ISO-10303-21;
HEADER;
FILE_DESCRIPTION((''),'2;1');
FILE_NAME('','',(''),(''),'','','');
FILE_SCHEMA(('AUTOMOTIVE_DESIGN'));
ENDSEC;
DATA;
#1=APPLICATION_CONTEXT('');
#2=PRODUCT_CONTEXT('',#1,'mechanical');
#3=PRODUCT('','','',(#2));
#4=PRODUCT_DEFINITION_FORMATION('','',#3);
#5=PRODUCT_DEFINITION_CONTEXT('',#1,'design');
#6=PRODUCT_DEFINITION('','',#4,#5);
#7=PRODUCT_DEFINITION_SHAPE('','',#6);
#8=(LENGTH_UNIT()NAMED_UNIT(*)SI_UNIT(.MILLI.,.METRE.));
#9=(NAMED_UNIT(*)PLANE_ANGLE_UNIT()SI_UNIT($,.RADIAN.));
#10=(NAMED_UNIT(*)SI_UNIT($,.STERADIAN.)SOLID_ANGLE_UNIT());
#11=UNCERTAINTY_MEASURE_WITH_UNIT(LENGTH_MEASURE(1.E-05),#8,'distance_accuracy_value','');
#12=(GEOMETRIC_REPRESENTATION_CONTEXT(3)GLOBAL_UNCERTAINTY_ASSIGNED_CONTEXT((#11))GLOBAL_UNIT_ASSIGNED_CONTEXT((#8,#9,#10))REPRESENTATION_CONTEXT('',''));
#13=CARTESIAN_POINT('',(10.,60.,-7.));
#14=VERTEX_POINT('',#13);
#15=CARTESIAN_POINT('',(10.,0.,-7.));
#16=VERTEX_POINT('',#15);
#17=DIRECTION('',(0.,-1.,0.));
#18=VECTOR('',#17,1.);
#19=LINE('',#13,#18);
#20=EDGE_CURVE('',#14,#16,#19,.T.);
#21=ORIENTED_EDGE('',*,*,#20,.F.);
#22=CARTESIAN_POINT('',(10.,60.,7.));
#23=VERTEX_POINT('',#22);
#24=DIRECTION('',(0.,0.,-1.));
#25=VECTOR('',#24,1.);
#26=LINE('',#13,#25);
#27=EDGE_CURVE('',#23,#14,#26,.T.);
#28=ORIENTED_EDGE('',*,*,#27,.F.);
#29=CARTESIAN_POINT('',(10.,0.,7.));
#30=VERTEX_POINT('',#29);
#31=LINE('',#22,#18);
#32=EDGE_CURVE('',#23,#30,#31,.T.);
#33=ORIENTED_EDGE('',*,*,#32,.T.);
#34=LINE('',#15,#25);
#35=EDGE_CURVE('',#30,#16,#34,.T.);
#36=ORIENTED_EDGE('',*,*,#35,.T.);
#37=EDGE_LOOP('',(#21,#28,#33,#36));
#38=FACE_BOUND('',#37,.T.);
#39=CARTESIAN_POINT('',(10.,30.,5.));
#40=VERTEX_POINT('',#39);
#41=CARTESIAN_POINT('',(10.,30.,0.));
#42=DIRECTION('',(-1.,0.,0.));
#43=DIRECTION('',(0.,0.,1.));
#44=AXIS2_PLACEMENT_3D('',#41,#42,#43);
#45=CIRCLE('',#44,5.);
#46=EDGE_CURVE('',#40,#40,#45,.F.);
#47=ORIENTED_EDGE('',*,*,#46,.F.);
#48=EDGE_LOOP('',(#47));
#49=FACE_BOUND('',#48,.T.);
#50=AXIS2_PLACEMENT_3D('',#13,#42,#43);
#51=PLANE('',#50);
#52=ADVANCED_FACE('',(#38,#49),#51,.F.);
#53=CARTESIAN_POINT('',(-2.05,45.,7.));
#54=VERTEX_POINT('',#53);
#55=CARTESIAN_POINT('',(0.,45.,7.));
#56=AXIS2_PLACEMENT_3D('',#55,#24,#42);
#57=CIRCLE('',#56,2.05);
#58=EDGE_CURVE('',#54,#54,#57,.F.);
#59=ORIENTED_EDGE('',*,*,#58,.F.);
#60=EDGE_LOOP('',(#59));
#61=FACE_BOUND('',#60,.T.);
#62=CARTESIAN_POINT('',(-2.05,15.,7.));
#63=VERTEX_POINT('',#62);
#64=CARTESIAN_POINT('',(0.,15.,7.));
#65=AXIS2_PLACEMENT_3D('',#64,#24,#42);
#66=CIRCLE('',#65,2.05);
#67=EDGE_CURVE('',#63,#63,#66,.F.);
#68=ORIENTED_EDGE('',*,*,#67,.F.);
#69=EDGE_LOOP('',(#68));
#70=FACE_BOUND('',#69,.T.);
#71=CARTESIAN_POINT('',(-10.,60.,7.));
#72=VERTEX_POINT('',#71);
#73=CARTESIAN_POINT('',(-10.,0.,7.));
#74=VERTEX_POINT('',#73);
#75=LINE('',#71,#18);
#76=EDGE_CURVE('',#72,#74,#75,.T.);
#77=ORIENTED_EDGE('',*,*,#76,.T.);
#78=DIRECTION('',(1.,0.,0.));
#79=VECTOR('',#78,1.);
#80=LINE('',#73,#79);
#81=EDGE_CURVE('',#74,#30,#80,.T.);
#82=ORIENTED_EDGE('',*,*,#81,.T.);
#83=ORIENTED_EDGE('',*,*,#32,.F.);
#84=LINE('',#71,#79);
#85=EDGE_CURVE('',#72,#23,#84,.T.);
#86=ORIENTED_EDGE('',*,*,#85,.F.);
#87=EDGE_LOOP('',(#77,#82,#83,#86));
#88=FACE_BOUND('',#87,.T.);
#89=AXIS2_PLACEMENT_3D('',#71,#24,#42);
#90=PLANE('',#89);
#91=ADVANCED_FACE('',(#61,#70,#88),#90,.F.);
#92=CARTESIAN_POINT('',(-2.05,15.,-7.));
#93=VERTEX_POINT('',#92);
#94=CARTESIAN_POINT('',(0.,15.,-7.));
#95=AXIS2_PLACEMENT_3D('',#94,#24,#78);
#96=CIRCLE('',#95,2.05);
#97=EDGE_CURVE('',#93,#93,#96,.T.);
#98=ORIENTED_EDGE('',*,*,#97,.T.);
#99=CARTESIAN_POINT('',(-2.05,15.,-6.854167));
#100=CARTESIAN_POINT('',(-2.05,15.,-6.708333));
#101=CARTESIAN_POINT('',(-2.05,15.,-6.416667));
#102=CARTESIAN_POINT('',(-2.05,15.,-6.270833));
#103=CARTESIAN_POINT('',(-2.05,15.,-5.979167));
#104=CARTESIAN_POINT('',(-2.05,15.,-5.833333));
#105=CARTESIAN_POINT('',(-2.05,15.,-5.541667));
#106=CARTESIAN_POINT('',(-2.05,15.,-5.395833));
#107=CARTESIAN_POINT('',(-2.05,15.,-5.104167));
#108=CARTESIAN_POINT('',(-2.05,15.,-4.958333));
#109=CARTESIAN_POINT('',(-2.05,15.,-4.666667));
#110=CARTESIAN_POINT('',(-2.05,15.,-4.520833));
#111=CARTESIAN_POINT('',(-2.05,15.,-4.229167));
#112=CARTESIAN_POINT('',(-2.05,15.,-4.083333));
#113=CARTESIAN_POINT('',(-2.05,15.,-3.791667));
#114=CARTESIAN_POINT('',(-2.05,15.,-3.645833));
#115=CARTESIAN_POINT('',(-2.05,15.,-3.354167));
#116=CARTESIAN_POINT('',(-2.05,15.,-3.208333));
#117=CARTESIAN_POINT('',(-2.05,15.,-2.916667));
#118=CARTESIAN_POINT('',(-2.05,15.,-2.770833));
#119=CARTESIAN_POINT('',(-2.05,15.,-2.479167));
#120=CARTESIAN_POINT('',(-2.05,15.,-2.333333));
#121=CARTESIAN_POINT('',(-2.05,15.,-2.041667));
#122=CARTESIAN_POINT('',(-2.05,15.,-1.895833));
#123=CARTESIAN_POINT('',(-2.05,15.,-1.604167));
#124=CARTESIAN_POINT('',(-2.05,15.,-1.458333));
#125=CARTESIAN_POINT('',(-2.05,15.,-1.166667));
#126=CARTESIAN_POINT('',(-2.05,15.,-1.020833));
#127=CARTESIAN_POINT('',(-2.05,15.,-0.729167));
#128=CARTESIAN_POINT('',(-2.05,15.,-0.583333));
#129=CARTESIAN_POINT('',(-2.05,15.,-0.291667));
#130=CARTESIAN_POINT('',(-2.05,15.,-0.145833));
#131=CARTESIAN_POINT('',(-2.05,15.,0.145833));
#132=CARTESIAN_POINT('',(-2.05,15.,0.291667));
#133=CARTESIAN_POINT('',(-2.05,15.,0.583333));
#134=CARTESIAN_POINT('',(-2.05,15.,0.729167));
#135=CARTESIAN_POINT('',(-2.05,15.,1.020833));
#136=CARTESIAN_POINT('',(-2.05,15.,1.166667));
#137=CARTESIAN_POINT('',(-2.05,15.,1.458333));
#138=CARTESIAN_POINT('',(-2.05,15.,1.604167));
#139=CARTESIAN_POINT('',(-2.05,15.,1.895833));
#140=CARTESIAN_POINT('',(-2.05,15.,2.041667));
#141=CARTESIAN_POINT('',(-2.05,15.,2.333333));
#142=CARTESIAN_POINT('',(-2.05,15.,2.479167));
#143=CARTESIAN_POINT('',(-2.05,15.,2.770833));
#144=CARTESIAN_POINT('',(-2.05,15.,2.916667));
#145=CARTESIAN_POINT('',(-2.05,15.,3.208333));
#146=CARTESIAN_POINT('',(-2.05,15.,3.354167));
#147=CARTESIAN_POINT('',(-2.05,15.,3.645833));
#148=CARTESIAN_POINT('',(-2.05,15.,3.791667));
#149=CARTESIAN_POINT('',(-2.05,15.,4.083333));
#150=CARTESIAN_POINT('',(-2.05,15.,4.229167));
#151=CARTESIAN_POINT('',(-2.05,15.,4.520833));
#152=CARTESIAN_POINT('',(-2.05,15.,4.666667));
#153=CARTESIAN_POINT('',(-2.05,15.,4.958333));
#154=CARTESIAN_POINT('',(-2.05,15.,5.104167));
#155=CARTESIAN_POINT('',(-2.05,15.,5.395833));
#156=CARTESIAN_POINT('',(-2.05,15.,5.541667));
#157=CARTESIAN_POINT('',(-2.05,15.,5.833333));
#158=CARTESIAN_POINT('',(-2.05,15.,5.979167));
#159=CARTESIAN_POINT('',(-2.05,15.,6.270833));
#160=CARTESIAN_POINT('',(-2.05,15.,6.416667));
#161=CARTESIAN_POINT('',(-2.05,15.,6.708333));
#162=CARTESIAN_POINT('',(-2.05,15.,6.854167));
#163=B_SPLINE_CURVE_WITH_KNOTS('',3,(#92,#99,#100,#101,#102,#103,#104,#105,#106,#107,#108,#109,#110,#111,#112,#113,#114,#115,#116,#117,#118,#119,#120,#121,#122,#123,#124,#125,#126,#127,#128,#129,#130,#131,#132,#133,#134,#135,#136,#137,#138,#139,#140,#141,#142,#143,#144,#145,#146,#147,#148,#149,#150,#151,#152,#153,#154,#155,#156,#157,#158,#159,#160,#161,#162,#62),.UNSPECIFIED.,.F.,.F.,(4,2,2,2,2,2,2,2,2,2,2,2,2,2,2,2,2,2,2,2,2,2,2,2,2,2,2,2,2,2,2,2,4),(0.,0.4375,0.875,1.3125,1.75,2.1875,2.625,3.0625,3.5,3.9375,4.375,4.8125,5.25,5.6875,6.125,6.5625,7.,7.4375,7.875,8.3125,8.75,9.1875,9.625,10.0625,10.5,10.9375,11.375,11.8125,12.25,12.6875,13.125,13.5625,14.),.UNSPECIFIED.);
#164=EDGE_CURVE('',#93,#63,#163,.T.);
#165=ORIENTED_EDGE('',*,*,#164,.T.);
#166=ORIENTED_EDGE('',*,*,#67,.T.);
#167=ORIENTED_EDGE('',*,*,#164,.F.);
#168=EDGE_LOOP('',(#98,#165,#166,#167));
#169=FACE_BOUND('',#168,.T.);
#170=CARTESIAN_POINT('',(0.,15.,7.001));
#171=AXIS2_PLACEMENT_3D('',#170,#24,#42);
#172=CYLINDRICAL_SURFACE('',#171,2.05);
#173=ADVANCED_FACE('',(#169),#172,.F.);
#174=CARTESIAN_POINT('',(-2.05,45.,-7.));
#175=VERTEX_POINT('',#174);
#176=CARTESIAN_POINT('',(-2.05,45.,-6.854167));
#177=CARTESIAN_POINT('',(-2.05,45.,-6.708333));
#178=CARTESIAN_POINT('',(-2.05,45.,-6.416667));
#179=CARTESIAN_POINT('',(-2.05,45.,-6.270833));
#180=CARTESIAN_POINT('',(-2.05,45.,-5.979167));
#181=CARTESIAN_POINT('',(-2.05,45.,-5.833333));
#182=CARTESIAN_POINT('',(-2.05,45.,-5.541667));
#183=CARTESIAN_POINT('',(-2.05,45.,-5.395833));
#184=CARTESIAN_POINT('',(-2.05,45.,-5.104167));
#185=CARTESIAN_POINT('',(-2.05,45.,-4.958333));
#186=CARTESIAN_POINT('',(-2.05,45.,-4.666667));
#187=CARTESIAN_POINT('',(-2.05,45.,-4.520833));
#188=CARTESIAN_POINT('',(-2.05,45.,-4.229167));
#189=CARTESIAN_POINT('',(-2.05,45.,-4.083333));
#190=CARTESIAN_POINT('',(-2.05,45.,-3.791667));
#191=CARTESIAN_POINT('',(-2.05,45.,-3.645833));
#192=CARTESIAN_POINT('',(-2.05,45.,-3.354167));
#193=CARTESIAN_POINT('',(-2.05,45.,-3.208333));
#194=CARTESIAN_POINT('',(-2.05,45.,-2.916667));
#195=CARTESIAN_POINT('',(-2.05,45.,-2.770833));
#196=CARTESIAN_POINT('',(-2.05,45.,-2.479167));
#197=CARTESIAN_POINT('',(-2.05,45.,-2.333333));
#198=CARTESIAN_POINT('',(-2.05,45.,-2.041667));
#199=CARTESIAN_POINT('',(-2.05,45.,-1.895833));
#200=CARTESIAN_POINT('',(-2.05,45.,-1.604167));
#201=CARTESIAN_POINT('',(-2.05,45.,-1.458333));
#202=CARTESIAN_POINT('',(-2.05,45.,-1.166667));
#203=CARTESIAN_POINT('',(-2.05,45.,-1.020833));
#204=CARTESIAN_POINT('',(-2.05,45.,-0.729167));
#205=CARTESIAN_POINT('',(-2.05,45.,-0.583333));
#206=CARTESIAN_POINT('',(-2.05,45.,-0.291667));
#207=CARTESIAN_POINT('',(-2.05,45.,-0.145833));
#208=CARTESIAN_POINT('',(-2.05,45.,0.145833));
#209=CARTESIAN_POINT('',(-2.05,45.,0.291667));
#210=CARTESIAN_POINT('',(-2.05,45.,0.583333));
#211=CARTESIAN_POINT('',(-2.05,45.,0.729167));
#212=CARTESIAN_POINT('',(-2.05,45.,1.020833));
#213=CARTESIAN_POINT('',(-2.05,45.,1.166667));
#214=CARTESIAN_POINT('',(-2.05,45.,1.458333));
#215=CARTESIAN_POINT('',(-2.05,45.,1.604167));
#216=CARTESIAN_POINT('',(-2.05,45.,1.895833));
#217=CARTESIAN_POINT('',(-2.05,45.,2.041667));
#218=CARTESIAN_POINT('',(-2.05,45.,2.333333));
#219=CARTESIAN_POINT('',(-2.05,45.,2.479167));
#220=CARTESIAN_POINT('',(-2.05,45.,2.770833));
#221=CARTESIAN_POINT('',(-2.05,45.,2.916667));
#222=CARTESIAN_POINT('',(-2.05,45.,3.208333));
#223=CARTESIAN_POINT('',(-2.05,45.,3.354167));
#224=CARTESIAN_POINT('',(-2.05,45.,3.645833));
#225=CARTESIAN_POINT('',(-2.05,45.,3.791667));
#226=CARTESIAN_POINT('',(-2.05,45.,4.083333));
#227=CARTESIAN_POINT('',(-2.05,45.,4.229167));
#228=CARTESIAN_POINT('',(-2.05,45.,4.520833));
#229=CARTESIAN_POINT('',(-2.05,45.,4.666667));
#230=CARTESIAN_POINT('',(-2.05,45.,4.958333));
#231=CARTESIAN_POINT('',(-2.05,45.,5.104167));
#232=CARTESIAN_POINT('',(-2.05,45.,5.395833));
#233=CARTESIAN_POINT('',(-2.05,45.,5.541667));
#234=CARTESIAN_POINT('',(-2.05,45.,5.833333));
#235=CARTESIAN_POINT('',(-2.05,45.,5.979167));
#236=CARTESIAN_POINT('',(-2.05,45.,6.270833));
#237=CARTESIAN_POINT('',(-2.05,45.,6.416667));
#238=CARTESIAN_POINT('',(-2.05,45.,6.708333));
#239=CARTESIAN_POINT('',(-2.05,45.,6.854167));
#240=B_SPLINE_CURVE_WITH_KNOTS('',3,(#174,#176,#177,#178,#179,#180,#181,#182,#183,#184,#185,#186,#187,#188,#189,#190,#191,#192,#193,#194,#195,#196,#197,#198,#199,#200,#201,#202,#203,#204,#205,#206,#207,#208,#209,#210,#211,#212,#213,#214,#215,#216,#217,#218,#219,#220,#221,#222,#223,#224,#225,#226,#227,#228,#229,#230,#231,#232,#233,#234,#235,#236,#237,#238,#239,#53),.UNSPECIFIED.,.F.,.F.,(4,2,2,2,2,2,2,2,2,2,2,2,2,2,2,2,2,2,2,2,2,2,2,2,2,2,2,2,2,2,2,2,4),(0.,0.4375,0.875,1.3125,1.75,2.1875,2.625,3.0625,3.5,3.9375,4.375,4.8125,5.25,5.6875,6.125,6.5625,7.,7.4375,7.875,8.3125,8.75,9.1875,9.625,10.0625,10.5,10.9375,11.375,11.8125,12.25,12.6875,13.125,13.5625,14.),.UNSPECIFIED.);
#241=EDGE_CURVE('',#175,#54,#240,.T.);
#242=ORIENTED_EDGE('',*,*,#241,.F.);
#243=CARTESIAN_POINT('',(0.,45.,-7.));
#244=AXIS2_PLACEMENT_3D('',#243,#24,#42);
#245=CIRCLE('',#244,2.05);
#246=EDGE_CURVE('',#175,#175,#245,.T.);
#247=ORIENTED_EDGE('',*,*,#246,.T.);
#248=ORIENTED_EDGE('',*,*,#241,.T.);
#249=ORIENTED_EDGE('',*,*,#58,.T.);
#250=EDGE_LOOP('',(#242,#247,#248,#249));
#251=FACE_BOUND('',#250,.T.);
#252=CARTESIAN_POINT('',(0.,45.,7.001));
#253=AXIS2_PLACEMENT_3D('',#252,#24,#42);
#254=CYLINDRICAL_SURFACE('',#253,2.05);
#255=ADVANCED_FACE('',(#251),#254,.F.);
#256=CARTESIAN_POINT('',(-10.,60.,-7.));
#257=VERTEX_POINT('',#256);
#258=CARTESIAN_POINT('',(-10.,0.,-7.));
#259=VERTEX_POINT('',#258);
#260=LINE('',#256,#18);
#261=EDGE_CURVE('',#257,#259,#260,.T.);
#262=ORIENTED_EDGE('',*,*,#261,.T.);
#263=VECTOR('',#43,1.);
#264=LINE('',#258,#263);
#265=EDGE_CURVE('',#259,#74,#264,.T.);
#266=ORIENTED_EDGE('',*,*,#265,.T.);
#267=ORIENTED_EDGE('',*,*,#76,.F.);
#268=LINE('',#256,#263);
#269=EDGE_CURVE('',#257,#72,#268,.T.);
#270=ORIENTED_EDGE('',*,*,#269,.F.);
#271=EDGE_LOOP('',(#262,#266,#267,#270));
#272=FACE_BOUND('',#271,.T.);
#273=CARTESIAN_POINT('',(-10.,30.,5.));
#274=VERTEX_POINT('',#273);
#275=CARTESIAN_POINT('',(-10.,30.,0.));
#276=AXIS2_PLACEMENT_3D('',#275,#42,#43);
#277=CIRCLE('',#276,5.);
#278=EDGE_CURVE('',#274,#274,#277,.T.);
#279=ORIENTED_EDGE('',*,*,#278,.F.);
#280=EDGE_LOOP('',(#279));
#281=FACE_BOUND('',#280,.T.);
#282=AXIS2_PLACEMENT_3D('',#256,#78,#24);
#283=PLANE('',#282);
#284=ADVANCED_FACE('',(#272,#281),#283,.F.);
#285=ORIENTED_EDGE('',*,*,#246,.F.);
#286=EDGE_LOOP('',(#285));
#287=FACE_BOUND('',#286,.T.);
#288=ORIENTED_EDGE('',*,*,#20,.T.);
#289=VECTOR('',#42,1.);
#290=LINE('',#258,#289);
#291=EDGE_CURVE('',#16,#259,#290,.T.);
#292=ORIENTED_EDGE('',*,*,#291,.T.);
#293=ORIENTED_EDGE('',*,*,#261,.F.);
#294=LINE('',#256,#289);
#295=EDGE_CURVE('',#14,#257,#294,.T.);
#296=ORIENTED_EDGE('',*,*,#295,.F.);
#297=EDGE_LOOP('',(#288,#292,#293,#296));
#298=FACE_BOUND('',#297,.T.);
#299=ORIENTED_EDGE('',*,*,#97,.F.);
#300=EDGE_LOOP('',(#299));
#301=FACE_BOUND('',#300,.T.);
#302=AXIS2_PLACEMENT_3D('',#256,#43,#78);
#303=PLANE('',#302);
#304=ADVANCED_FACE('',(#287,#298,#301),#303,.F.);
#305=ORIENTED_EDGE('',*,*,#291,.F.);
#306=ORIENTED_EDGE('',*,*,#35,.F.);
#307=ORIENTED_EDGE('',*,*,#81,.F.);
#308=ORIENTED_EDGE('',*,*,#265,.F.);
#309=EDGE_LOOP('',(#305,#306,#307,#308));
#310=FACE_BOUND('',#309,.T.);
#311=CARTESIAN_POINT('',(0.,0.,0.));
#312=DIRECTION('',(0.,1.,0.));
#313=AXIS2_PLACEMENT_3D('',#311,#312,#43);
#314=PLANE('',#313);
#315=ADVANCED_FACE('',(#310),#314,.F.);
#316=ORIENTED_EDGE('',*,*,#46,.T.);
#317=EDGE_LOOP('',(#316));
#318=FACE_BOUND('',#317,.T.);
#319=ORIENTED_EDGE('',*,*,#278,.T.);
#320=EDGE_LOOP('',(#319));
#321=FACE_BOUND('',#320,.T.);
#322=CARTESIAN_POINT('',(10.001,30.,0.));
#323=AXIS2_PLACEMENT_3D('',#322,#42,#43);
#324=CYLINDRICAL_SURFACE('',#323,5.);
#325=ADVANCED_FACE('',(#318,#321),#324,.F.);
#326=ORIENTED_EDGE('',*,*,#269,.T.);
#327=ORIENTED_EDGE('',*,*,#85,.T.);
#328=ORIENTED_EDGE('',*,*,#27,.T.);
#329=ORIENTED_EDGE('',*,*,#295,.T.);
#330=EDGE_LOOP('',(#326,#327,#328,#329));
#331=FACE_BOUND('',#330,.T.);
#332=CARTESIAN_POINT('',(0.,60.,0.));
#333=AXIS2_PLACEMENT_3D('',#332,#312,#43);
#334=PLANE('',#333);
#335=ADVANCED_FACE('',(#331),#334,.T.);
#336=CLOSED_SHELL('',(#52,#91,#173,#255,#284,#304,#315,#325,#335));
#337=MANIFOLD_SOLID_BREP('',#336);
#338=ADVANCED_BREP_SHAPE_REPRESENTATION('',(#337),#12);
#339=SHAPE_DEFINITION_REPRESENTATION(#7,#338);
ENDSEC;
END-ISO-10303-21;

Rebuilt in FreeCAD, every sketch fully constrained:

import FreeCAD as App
import Part
import Sketcher

V = App.Vector
Q = App.Units.Quantity


def add_polygon(sketch, points):
    """Adds a closed chain of lines whose ends are joined by coincident constraints."""
    first, n = sketch.GeometryCount, len(points)
    for a, b in zip(points, points[1:] + points[:1]):
        sketch.addGeometry(Part.LineSegment(App.Vector(*a, 0), App.Vector(*b, 0)), False)
    for i in range(n):
        sketch.addConstraint(Sketcher.Constraint("Coincident", first + i, 2, first + (i + 1) % n, 1))

doc = App.newDocument("Part")
body = doc.addObject("PartDesign::Body", "Body")

# Sketch on XZ plane
sketch1 = body.newObject("Sketcher::SketchObject", "Sketch")
sketch1.AttachmentSupport = (doc.getObject("XZ_Plane"), [""])
sketch1.MapMode = "FlatFace"
add_polygon(sketch1, [(-10, -7), (-10, 7), (10, 7), (10, -7)])  # lines 0-3
sketch1.addConstraint([
    Sketcher.Constraint("Vertical", 0),
    Sketcher.Constraint("Horizontal", 1),
    Sketcher.Constraint("Vertical", 2),
    Sketcher.Constraint("Horizontal", 3),
    Sketcher.Constraint("Symmetric", 0, 2, 2, 2, -1, 1),
    Sketcher.Constraint("DistanceX", 1, 1, 1, 2, Q("20 mm")),
    Sketcher.Constraint("DistanceY", 0, 1, 0, 2, Q("14 mm")),
])
pad1 = body.newObject("PartDesign::Pad", "Pad")
pad1.Profile = sketch1
pad1.Length = 60
pad1.Reversed = True

# Sketch on YZ plane
sketch2 = body.newObject("Sketcher::SketchObject", "Sketch001")
sketch2.AttachmentSupport = (doc.getObject("YZ_Plane"), [""])
sketch2.MapMode = "FlatFace"
sketch2.AttachmentOffset = App.Placement(V(0, 0, -10), App.Rotation())
sketch2.addGeometry(Part.Circle(V(30, 0, 0), V(0, 0, 1), 5), False)
sketch2.addConstraint([
    Sketcher.Constraint("PointOnObject", 0, 3, -1),
    Sketcher.Constraint("Diameter", 0, Q("10 mm")),
    Sketcher.Constraint("DistanceX", -1, 1, 0, 3, Q("30 mm")),
])
pocket1 = body.newObject("PartDesign::Pocket", "Pocket")
pocket1.Profile = sketch2
pocket1.Type = "UpToFirst"
pocket1.Reversed = True

# Sketch on XY plane
sketch3 = body.newObject("Sketcher::SketchObject", "Sketch002")
sketch3.AttachmentSupport = (doc.getObject("XY_Plane"), [""])
sketch3.MapMode = "FlatFace"
sketch3.AttachmentOffset = App.Placement(V(0, 0, -7), App.Rotation())
sketch3.addGeometry(Part.Circle(V(0, 45, 0), V(0, 0, 1), 2), False)
sketch3.addConstraint([
    Sketcher.Constraint("PointOnObject", 0, 3, -2),
    Sketcher.Constraint("Diameter", 0, Q("4.1 mm")),
    Sketcher.Constraint("DistanceY", -1, 1, 0, 3, Q("45 mm")),
])
pocket2 = body.newObject("PartDesign::Pocket", "Pocket001")
pocket2.Profile = sketch3
pocket2.Type = "UpToFirst"
pocket2.Reversed = True

# Sketch on XY plane
sketch4 = body.newObject("Sketcher::SketchObject", "Sketch003")
sketch4.AttachmentSupport = (doc.getObject("XY_Plane"), [""])
sketch4.MapMode = "FlatFace"
sketch4.AttachmentOffset = App.Placement(V(0, 0, -7), App.Rotation())
sketch4.addGeometry(Part.Circle(V(0, 15, 0), V(0, 0, 1), 2), False)
sketch4.addConstraint([
    Sketcher.Constraint("PointOnObject", 0, 3, -2),
    Sketcher.Constraint("Diameter", 0, Q("4.1 mm")),
    Sketcher.Constraint("DistanceY", -1, 1, 0, 3, Q("15 mm")),
])
pocket3 = body.newObject("PartDesign::Pocket", "Pocket002")
pocket3.Profile = sketch4
pocket3.Type = "UpToFirst"
pocket3.Reversed = True

doc.recompute()
